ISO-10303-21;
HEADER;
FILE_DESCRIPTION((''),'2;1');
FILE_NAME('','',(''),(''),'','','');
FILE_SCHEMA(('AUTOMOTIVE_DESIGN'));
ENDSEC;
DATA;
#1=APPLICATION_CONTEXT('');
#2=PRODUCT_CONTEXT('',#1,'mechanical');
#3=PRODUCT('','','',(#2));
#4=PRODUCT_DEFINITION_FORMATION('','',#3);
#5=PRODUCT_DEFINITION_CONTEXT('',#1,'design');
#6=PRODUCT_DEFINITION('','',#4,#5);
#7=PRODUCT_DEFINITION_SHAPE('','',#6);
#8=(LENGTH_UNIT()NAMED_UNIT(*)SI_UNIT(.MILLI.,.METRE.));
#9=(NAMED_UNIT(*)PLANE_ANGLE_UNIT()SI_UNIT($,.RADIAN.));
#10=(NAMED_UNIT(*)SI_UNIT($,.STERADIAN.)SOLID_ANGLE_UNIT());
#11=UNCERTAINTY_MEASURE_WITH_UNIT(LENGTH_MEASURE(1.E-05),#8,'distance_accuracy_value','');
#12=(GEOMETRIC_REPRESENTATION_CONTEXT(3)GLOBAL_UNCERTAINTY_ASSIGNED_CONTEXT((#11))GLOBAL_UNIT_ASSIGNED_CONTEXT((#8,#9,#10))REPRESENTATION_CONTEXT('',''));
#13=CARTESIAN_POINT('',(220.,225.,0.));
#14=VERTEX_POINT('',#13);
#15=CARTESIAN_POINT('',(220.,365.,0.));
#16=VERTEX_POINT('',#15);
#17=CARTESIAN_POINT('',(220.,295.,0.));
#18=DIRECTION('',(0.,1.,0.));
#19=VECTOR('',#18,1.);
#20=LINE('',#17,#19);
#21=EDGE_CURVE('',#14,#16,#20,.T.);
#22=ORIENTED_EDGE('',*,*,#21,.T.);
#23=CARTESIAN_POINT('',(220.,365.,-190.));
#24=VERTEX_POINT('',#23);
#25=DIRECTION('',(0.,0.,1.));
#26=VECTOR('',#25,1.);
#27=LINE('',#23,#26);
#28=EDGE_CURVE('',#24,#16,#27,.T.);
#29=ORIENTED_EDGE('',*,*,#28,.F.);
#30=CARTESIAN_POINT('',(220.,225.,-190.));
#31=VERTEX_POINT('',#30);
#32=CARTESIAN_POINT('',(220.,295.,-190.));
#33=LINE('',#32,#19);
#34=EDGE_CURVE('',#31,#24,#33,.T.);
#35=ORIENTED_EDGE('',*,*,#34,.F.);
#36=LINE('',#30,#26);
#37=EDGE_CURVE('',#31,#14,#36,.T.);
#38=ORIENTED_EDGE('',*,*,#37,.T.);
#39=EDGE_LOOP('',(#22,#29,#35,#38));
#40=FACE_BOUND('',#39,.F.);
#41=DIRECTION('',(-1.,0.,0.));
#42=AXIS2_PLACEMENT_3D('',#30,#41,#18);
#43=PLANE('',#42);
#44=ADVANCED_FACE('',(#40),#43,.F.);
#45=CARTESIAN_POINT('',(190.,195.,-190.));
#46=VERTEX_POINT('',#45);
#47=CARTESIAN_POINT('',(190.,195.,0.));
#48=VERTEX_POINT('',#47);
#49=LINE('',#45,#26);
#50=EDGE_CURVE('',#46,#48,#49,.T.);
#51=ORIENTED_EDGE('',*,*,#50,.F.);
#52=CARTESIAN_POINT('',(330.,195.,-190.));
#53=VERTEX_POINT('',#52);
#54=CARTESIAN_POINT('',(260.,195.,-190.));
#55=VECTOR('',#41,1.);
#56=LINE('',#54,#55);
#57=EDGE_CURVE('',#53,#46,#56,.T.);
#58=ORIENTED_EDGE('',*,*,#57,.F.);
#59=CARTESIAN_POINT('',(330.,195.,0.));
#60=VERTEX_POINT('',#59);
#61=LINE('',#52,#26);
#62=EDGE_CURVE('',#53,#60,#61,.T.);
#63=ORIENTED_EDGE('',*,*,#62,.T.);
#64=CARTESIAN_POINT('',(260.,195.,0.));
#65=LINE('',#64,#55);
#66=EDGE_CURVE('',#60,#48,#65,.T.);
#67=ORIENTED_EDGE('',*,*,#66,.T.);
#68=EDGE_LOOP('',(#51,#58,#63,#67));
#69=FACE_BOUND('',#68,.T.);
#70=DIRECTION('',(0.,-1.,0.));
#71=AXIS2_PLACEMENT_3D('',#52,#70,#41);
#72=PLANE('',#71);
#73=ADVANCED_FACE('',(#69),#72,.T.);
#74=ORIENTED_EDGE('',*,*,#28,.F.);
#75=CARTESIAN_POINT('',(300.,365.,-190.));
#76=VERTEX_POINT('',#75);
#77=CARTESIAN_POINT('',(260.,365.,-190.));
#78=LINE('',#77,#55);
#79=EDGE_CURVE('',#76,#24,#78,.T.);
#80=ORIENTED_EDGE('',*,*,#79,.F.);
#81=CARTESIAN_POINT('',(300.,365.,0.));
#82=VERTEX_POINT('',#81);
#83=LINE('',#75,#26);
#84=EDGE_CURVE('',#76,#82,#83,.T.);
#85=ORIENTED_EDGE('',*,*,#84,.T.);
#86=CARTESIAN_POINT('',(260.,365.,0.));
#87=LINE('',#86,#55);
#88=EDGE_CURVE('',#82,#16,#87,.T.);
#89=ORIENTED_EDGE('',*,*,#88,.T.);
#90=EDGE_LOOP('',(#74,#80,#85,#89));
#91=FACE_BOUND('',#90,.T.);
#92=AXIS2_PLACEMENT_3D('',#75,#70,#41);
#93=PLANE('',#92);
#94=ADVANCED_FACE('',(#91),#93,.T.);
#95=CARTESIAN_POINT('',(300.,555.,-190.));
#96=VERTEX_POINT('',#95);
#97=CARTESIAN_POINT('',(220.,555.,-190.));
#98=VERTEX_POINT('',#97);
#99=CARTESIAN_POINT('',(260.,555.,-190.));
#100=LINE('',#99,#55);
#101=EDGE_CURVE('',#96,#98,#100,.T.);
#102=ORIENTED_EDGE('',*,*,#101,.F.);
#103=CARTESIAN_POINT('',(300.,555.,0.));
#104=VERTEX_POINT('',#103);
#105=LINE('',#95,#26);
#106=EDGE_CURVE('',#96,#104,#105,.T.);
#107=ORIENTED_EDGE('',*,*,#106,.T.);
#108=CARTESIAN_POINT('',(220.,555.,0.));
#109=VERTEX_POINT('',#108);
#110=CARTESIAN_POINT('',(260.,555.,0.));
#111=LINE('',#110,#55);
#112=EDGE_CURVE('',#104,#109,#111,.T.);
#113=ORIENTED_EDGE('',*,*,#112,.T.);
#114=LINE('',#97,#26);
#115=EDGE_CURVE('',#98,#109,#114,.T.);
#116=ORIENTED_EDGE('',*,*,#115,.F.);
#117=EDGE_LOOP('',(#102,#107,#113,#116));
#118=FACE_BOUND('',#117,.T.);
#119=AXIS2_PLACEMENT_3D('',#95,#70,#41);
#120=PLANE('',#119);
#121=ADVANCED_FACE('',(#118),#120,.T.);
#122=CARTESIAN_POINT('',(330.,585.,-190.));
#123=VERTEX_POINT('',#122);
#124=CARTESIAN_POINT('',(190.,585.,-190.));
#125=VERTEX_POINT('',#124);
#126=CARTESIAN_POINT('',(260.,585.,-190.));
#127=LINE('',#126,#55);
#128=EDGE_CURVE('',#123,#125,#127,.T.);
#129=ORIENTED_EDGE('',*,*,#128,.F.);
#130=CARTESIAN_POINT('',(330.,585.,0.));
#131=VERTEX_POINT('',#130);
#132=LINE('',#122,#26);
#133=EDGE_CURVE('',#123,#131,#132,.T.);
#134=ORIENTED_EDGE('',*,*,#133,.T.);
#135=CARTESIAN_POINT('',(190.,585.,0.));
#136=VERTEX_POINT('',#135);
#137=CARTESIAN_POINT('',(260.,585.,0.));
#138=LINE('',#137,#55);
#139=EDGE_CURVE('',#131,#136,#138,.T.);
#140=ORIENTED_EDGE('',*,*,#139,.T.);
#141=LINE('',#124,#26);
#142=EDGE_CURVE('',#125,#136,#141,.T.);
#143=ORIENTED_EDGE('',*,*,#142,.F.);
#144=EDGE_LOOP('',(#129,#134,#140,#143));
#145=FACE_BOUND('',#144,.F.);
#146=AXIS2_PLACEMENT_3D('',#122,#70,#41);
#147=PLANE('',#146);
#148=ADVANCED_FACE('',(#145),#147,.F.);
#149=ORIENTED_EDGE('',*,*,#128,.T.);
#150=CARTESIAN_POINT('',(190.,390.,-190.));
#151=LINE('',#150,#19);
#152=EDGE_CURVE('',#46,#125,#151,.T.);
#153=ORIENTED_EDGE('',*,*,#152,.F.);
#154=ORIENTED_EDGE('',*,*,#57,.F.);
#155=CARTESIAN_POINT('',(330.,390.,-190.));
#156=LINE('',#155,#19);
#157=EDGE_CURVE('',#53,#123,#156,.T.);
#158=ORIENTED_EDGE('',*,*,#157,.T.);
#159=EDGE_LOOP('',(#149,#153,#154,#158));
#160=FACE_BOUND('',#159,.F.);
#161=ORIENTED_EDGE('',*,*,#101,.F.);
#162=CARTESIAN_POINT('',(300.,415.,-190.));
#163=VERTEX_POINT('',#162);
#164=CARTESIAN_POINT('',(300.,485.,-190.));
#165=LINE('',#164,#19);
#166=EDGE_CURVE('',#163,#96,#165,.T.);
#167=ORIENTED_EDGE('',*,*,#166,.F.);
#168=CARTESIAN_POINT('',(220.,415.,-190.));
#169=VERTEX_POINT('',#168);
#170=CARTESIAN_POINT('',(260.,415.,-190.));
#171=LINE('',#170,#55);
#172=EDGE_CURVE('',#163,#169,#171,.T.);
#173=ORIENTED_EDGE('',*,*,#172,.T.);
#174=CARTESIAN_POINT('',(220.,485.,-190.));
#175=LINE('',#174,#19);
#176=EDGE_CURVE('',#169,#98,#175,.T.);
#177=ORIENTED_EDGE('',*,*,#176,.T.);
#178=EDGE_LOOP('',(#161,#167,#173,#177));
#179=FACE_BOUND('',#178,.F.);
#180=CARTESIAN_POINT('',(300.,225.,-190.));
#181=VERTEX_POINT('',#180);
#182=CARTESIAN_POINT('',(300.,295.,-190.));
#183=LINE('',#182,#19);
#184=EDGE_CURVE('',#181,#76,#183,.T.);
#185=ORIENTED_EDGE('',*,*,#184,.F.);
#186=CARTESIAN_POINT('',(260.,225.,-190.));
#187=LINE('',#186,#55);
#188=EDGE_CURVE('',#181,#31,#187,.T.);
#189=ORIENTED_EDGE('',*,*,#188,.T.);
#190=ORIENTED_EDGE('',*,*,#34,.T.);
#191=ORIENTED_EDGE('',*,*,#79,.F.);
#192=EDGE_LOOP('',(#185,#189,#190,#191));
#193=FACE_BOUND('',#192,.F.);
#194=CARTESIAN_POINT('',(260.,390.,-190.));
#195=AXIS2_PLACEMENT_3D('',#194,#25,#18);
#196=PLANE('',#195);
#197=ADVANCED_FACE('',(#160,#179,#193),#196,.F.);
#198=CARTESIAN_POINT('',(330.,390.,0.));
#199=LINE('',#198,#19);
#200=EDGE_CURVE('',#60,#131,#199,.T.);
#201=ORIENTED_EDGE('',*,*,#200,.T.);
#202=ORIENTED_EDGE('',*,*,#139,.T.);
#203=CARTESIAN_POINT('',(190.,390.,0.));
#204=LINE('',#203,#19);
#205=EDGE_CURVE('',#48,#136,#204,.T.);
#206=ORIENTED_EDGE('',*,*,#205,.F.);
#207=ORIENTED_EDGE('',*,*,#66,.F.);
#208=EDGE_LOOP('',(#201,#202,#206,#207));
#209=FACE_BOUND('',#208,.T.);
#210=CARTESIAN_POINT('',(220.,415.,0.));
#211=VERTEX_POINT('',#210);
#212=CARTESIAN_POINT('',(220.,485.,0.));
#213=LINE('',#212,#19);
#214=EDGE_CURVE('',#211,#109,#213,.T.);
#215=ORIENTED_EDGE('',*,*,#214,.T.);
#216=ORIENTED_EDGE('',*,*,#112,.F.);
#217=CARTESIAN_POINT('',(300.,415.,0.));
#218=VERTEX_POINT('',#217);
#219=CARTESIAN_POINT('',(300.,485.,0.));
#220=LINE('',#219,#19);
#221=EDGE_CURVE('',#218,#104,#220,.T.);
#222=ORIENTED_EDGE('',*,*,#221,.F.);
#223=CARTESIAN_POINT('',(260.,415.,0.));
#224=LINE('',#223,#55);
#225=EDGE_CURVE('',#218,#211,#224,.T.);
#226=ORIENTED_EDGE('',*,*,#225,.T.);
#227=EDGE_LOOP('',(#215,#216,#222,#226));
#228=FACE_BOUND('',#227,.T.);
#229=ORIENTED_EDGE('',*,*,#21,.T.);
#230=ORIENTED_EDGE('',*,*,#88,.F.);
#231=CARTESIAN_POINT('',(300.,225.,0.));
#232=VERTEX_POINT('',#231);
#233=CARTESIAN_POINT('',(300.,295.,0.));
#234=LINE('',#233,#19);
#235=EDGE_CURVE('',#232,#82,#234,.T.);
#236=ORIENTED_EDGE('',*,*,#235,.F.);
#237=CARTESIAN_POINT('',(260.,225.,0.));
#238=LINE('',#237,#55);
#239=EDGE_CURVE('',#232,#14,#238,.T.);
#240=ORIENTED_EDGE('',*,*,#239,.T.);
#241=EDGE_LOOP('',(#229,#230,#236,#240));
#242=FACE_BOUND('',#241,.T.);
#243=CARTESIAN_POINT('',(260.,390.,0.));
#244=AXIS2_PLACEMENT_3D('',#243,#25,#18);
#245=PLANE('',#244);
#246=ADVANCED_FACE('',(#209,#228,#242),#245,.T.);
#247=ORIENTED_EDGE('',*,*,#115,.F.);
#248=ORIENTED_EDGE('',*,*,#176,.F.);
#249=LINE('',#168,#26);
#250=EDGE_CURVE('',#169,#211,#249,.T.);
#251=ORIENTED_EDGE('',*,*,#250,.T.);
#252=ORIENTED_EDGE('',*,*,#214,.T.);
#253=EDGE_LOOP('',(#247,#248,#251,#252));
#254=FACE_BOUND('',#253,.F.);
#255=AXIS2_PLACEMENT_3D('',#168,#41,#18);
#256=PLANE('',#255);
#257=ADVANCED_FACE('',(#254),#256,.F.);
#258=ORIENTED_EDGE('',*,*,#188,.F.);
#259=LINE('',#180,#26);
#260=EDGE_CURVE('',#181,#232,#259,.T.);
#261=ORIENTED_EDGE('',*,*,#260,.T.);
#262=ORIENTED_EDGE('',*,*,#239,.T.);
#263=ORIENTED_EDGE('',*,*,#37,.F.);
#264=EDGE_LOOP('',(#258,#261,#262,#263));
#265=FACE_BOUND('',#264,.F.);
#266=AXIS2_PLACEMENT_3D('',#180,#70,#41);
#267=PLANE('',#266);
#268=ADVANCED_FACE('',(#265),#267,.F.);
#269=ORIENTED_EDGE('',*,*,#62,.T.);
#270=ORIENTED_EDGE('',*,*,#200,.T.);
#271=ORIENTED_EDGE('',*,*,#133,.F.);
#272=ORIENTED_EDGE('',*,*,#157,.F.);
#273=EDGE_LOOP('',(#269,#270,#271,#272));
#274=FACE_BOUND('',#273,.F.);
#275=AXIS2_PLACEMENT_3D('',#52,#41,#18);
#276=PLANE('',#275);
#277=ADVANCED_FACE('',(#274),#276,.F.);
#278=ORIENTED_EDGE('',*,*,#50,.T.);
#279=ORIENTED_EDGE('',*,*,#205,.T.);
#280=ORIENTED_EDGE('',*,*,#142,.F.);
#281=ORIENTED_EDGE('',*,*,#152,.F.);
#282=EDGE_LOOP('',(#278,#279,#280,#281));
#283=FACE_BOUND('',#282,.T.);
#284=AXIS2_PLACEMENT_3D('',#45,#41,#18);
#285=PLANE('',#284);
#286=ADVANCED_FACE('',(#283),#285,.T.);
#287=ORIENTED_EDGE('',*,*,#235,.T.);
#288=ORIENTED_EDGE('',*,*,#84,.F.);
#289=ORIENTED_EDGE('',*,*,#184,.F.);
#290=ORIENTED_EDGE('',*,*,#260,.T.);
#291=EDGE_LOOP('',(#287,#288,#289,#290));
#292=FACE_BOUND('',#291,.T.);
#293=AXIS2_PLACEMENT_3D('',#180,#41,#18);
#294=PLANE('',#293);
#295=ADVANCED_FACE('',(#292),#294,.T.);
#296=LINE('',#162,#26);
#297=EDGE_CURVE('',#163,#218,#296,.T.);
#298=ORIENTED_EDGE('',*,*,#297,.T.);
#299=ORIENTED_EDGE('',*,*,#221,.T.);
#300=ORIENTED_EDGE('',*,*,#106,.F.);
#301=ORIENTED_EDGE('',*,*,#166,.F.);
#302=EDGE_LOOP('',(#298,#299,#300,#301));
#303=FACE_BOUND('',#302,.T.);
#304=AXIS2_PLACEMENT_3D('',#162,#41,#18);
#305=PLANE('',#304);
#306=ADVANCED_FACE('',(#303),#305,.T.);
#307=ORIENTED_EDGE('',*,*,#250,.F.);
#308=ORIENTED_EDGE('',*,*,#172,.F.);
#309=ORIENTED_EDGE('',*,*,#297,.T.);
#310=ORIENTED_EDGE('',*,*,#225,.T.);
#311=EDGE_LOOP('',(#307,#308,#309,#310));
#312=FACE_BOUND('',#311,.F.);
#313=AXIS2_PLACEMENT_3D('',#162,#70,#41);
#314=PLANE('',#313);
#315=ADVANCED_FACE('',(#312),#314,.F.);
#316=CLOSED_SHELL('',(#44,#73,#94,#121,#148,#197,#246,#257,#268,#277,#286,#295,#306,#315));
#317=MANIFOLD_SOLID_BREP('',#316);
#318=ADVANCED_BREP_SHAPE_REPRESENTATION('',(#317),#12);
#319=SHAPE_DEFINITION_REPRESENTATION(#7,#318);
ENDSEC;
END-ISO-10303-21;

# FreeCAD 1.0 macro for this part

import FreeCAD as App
import Part
import Sketcher
from FreeCAD import Vector


def add_polygon(sketch, points):
    """Adds a closed chain of lines whose ends are joined by coincident constraints."""
    first, n = sketch.GeometryCount, len(points)
    for a, b in zip(points, points[1:] + points[:1]):
        sketch.addGeometry(Part.LineSegment(App.Vector(*a, 0), App.Vector(*b, 0)), False)
    for i in range(n):
        sketch.addConstraint(Sketcher.Constraint("Coincident", first + i, 2, first + (i + 1) % n, 1))

doc = App.newDocument("Part")
body = doc.addObject("PartDesign::Body", "Body")

sketch1 = body.newObject("Sketcher::SketchObject", "Sketch")
sketch1.AttachmentSupport = (doc.getObject("XY_Plane"), [""])
sketch1.MapMode = "FlatFace"
add_polygon(sketch1, [(220, 110), (220, 30), (360, 30), (360, 110)])
sketch1.addConstraint([
    Sketcher.Constraint("Vertical", 0),
    Sketcher.Constraint("Horizontal", 1),
    Sketcher.Constraint("Vertical", 2),
    Sketcher.Constraint("Horizontal", 3),
    Sketcher.Constraint("DistanceX", 1, 1, 1, 2, 140.0),
    Sketcher.Constraint("DistanceY", 0, 2, 0, 1, 80.0),
    Sketcher.Constraint("DistanceX", -1, 1, 0, 2, 220.0),
    Sketcher.Constraint("DistanceY", -1, 1, 0, 2, 30.0),
])
pad1 = body.newObject("PartDesign::Pad", "Pad")
pad1.Profile = sketch1
pad1.Length = 190
body2 = doc.addObject("PartDesign::Body", "Body001")
body2.AllowCompound = True

sketch2 = body2.newObject("Sketcher::SketchObject", "Sketch001")
sketch2.AttachmentSupport = (doc.getObject("XY_Plane001"), [""])
sketch2.MapMode = "FlatFace"
add_polygon(sketch2, [(30, 110), (30, 30), (170, 30), (170, 110)])
sketch2.addConstraint([
    Sketcher.Constraint("Vertical", 0),
    Sketcher.Constraint("Horizontal", 1),
    Sketcher.Constraint("Vertical", 2),
    Sketcher.Constraint("Horizontal", 3),
    Sketcher.Constraint("DistanceX", 1, 1, 1, 2, 140.0),
    Sketcher.Constraint("DistanceY", 0, 2, 0, 1, 80.0),
    Sketcher.Constraint("DistanceX", -1, 1, 0, 2, 30.0),
    Sketcher.Constraint("DistanceY", -1, 1, 0, 2, 30.0),
])
pad2 = body2.newObject("PartDesign::Pad", "Pad001")
pad2.Profile = sketch2
pad2.Length = 190
doc.recompute()

boolean = body2.newObject("PartDesign::Boolean", "Boolean")
boolean.Type = "Fuse"
boolean.addObjects([body])
body3 = doc.addObject("PartDesign::Body", "Body002")

sketch3 = body3.newObject("Sketcher::SketchObject", "Sketch002")
sketch3.AttachmentSupport = (doc.getObject("XY_Plane002"), [""])
sketch3.MapMode = "FlatFace"
add_polygon(sketch3, [(0, 140), (0, 0), (390, 0), (390, 140)])
sketch3.addConstraint([
    Sketcher.Constraint("Vertical", 0),
    Sketcher.Constraint("Horizontal", 1),
    Sketcher.Constraint("Vertical", 2),
    Sketcher.Constraint("Horizontal", 3),
    Sketcher.Constraint("Coincident", 0, 2, -1, 1),
    Sketcher.Constraint("DistanceX", 1, 1, 1, 2, 390.0),
    Sketcher.Constraint("DistanceY", 0, 2, 0, 1, 140.0),
])
pad3 = body3.newObject("PartDesign::Pad", "Pad002")
pad3.Profile = sketch3
pad3.Length = 190
doc.recompute()

boolean2 = body3.newObject("PartDesign::Boolean", "Boolean001")
boolean2.Type = "Cut"
boolean2.addObjects([body2])
body4 = doc.addObject("PartDesign::Body", "Body003")
doc.recompute()

body3.Placement = App.Placement(Vector(330, 195, -190), App.Rotation(Vector(0, 0, 1), 90))
boolean3 = body4.newObject("PartDesign::Boolean", "Boolean002")
boolean3.Type = "Fuse"
boolean3.addObjects([body3])

doc.recompute()
